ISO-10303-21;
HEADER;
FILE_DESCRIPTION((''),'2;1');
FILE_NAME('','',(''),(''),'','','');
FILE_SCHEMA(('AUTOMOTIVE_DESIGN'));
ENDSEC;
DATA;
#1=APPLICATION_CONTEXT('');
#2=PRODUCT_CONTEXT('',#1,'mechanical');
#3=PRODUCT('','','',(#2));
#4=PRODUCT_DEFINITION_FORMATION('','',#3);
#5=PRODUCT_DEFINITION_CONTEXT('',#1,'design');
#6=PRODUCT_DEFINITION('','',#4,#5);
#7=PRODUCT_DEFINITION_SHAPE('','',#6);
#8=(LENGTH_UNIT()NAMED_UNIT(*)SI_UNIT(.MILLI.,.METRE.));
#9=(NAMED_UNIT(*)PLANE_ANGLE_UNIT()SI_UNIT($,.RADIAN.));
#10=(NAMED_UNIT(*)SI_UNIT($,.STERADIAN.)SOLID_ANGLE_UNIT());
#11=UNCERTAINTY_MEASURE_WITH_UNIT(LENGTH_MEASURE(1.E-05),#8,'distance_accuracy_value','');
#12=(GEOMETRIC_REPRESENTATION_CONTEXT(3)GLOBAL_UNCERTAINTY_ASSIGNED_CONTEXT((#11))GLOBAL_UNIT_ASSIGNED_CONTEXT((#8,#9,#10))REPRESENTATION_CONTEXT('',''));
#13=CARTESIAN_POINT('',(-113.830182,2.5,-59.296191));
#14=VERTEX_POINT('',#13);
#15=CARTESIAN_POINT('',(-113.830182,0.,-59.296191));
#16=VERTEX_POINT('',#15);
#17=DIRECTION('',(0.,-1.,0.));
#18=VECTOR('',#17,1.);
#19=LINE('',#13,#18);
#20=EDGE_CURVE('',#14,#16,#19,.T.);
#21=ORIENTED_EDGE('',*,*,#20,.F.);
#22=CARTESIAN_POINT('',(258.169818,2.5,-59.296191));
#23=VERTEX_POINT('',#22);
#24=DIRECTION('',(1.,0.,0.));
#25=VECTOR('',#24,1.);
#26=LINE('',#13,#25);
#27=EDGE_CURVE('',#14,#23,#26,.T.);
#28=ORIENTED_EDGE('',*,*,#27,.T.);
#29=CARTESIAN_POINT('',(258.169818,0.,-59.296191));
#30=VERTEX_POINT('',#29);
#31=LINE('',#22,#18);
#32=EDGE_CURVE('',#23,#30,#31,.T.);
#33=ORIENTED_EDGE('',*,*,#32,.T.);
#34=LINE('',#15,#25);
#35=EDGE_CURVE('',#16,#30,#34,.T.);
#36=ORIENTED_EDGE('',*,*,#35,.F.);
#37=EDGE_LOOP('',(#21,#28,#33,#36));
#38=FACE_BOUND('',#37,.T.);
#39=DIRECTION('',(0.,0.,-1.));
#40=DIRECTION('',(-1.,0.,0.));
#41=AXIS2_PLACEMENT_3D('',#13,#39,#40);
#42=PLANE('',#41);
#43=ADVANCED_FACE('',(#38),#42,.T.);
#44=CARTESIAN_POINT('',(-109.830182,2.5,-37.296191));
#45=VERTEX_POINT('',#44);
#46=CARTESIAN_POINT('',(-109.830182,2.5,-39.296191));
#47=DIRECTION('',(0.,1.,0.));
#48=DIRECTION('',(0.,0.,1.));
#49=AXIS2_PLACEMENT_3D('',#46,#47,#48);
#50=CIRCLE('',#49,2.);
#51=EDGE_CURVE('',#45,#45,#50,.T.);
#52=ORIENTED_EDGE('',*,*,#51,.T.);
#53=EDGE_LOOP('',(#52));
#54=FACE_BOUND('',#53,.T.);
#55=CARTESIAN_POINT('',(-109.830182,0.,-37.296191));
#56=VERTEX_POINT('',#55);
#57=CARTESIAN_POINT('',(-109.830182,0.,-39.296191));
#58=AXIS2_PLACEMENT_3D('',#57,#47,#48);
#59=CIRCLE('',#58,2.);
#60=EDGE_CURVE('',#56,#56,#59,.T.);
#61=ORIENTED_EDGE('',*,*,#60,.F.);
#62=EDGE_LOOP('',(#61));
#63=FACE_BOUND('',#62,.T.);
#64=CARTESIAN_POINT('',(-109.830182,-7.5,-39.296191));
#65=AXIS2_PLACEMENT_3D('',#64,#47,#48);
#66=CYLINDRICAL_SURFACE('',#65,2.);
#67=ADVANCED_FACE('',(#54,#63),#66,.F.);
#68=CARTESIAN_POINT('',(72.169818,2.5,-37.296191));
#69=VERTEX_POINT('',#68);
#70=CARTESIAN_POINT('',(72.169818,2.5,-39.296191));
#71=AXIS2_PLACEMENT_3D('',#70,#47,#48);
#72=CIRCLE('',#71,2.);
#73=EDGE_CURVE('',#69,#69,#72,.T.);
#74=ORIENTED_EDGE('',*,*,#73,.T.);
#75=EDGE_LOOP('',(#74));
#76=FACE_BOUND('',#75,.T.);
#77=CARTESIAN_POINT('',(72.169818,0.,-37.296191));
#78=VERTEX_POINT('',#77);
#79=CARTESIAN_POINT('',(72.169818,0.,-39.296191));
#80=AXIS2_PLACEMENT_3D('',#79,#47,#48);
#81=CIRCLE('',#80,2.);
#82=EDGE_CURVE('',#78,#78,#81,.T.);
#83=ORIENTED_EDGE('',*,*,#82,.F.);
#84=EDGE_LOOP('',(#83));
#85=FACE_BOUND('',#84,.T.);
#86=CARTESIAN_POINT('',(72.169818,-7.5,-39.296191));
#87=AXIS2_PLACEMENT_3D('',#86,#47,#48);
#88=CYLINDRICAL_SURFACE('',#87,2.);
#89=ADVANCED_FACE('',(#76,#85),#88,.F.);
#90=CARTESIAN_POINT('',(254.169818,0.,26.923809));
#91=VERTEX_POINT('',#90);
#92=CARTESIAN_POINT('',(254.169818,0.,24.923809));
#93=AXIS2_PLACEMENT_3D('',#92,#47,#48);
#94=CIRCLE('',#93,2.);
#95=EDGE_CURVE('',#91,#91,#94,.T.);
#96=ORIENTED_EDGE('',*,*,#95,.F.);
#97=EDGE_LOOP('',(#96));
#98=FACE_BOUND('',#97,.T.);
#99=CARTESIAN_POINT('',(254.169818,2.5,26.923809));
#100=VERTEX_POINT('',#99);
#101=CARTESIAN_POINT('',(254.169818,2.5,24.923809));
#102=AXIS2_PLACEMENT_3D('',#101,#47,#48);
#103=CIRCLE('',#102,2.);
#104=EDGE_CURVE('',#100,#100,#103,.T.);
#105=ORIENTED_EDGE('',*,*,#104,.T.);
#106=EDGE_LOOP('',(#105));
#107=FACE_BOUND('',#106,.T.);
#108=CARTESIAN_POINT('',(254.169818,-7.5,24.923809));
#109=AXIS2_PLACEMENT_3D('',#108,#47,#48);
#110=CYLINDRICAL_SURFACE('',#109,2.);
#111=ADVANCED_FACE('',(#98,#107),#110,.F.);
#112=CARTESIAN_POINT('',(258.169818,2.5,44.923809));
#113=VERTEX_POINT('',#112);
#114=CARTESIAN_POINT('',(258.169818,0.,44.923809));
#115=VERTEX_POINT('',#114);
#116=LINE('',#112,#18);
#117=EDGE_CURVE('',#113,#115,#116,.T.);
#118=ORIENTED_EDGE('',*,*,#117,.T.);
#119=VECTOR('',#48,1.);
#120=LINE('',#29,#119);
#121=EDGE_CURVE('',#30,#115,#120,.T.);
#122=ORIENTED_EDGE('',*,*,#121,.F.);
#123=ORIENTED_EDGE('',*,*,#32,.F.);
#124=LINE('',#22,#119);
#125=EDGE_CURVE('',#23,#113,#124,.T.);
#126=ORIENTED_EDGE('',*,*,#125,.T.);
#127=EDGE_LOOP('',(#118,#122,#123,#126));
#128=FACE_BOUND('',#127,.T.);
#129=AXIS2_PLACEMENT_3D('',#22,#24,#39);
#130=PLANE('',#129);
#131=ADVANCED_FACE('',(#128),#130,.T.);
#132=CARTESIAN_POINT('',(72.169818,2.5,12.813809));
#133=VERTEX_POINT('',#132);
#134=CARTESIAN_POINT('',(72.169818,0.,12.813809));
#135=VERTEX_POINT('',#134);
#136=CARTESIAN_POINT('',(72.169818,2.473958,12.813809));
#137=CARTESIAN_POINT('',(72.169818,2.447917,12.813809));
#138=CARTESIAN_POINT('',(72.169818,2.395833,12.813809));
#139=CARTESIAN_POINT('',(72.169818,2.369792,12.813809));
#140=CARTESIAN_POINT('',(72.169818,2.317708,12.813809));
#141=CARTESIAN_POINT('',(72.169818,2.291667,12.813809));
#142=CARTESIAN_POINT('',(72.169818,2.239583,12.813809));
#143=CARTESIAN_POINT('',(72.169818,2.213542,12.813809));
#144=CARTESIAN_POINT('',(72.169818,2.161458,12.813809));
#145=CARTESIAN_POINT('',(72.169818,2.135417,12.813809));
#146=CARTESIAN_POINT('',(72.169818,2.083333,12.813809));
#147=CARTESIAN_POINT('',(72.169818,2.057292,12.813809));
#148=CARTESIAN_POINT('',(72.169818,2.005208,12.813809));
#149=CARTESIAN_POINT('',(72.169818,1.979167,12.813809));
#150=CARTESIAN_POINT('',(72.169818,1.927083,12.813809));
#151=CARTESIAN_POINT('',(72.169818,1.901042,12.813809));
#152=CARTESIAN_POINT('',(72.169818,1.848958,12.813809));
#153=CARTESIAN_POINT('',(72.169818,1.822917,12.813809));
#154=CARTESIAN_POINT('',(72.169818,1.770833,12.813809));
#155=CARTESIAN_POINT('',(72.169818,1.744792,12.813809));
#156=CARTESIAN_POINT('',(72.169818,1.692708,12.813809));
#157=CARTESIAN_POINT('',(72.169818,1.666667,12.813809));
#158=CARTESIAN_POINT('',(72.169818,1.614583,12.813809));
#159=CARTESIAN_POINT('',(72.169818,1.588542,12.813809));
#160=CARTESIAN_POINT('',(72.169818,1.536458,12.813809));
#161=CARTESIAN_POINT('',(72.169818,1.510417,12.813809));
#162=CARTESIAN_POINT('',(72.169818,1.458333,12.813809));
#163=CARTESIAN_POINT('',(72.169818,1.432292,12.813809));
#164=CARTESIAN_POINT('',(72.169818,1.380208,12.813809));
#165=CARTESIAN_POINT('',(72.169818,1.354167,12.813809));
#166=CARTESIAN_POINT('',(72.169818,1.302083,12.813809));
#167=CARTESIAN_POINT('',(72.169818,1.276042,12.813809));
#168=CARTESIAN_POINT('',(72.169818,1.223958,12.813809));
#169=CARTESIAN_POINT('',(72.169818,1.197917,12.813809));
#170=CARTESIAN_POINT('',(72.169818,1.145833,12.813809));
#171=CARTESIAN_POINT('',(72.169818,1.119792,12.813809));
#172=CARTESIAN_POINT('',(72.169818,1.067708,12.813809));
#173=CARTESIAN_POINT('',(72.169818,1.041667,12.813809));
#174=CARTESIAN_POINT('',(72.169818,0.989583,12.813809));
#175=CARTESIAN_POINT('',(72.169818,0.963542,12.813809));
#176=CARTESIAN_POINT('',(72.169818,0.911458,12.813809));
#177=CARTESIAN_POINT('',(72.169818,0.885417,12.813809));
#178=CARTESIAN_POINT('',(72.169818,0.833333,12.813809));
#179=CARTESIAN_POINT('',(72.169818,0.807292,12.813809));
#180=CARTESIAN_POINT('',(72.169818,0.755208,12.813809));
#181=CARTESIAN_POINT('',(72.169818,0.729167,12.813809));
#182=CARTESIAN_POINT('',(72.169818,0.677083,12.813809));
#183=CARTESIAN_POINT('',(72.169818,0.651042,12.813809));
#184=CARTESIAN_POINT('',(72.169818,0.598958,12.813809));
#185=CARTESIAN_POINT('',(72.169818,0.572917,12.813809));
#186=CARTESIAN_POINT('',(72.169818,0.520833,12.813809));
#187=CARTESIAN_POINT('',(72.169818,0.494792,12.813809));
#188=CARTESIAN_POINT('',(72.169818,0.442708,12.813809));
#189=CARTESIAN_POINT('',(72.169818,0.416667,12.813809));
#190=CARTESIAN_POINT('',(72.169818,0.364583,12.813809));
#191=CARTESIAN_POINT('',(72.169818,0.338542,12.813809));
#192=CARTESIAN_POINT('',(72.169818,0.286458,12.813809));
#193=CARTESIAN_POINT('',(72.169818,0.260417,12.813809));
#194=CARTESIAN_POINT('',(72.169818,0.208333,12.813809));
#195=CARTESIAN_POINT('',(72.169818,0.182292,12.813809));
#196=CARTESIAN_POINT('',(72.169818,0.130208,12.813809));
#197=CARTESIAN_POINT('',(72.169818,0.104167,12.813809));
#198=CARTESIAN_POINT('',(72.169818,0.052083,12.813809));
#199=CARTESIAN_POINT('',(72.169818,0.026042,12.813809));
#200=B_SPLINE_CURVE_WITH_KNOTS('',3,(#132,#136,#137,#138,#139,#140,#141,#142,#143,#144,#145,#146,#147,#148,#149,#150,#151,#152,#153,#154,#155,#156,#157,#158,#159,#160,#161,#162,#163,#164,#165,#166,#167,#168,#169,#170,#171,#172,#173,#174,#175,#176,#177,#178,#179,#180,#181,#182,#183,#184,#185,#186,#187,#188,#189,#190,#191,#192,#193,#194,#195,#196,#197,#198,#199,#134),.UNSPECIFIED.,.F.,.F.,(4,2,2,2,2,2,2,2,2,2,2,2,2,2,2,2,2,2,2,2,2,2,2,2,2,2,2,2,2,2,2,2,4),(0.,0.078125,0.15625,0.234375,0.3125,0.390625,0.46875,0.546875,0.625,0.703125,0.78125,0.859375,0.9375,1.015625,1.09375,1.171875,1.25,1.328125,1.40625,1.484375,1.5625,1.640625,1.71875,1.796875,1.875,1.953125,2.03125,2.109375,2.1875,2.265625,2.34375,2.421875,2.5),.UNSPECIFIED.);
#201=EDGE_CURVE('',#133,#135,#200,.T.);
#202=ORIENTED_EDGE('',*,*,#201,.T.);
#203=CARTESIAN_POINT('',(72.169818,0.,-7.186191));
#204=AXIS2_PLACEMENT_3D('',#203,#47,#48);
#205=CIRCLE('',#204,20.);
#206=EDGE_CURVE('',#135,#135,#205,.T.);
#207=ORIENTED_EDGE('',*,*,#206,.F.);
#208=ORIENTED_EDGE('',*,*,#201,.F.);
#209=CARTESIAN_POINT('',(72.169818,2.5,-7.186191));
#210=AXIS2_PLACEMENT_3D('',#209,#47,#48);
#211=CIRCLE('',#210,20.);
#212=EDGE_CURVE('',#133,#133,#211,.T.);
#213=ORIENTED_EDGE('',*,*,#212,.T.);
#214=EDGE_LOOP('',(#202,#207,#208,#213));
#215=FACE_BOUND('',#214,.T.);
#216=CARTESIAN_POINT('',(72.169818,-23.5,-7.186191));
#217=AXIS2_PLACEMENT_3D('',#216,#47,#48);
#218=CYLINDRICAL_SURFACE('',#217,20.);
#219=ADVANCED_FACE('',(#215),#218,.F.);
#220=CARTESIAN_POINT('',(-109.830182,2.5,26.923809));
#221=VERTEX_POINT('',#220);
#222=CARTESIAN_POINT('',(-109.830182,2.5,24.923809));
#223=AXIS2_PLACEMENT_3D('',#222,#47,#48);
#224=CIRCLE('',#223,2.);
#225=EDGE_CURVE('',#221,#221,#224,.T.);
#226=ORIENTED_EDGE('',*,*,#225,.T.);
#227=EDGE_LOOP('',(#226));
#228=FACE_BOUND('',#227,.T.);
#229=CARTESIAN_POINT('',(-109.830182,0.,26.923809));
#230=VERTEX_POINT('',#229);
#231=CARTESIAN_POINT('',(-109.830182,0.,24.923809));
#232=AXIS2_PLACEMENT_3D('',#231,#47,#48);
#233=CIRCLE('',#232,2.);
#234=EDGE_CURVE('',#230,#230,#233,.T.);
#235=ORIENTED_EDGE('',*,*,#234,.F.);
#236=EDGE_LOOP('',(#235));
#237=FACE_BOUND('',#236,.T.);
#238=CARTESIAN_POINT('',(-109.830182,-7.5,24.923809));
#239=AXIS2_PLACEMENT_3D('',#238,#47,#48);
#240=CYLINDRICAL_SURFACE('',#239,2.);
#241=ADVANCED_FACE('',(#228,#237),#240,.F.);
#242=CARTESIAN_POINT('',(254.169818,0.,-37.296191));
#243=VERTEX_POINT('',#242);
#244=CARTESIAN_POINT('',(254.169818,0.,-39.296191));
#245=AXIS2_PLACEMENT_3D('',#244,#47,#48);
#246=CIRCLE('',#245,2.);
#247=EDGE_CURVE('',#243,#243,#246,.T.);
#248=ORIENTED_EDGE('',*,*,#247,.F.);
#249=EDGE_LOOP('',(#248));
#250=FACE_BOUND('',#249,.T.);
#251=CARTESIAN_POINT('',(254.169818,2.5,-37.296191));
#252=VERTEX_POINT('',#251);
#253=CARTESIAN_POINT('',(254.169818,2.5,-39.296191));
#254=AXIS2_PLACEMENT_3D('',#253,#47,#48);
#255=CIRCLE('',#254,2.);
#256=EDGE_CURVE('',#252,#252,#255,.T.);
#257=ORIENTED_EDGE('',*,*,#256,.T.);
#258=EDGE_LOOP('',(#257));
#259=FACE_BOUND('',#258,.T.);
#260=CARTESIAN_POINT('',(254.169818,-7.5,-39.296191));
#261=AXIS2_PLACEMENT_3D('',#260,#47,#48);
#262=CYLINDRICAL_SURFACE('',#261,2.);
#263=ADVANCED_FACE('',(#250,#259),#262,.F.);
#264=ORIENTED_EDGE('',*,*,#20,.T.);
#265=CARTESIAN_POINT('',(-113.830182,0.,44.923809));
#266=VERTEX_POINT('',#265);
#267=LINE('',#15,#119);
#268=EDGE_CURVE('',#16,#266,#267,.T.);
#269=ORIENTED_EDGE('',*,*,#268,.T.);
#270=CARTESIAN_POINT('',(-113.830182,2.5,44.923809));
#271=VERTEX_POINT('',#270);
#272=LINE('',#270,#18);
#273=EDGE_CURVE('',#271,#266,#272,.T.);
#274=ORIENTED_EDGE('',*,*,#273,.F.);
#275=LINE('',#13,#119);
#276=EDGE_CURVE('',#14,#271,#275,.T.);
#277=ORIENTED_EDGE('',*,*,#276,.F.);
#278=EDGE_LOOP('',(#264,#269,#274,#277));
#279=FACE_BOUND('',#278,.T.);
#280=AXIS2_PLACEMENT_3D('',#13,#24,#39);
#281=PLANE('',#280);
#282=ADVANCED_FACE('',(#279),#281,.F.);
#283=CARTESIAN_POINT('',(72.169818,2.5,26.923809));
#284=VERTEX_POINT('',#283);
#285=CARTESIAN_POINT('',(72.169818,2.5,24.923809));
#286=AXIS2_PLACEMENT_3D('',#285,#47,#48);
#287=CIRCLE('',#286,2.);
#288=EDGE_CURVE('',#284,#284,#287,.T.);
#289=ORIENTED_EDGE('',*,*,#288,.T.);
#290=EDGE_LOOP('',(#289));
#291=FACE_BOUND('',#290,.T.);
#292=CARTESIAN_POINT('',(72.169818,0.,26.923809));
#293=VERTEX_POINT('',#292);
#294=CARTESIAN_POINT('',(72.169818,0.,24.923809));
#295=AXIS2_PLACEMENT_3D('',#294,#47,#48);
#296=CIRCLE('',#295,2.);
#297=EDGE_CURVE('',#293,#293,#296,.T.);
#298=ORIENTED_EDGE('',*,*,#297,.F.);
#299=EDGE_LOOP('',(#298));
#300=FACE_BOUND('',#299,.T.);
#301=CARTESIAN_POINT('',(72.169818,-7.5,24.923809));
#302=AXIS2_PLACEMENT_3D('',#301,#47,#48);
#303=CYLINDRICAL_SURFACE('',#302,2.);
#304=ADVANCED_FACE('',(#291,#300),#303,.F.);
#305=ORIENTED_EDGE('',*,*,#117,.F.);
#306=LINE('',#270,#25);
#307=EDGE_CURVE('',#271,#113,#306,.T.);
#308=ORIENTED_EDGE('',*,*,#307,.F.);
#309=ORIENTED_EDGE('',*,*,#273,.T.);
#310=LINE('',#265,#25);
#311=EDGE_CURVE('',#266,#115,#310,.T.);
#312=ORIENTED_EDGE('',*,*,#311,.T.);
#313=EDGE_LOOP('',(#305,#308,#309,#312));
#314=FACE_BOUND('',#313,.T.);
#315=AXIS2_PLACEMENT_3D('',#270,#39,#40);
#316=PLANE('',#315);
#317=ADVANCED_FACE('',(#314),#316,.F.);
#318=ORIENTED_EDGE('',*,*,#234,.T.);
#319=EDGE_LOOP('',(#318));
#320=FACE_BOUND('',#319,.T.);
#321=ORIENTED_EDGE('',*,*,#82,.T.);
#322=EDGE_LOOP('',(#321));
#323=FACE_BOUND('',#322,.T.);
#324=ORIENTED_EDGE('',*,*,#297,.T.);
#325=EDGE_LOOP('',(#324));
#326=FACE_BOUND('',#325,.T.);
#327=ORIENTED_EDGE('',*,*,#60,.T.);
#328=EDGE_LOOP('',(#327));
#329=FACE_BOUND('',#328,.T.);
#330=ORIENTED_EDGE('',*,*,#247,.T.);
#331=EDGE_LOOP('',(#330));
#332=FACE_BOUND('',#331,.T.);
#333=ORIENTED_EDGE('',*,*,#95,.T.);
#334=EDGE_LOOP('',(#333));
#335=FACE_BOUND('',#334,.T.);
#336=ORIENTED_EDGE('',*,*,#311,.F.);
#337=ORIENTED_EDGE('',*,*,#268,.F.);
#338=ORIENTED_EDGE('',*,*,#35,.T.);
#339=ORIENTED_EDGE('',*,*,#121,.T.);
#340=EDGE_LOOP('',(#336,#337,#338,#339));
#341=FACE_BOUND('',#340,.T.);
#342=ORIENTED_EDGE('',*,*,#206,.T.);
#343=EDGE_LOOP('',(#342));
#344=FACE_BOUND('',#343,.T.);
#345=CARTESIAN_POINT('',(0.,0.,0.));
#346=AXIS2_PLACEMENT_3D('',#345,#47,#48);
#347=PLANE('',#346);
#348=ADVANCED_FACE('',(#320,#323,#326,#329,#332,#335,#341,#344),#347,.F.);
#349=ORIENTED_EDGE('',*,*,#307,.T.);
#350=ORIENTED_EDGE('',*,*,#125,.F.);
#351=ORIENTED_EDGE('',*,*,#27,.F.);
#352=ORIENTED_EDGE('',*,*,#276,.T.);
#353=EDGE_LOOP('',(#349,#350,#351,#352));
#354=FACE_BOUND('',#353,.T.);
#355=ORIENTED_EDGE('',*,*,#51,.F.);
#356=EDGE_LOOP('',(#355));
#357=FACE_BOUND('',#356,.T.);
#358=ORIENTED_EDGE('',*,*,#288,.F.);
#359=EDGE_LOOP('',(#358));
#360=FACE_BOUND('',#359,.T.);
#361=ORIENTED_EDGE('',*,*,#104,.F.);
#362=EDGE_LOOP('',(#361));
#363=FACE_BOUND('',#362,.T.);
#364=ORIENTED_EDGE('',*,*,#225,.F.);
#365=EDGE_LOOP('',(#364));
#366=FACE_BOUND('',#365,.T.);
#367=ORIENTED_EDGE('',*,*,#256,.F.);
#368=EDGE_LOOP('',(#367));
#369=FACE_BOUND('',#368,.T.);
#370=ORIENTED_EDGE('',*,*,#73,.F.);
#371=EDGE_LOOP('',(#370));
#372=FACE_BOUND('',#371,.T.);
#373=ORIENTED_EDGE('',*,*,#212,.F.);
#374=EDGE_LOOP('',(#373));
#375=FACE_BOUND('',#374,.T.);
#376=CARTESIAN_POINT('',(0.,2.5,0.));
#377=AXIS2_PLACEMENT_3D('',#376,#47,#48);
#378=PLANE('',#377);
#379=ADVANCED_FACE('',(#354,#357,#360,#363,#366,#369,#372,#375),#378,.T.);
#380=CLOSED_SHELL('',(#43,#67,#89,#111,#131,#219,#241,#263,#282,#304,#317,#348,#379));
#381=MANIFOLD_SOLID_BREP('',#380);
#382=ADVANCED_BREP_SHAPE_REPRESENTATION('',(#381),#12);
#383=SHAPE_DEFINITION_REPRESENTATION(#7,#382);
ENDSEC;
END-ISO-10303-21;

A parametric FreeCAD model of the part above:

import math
import FreeCAD as App
import Part
import Sketcher

V = App.Vector
Q = App.Units.Quantity

doc = App.newDocument("Part")
body = doc.addObject("PartDesign::Body", "Body")

# Sketch on XZ plane
sketch1 = doc.addObject("Sketcher::SketchObject", "Sketch")
body.addObject(sketch1)
sketch1.AttachmentSupport = (doc.XZ_Plane, [""])
sketch1.MapMode = "FlatFace"
sketch1.addGeometry([
    Part.LineSegment(V(-114, -59, 0), V(-114, 45, 0)),
    Part.LineSegment(V(-114, 45, 0), V(258, 45, 0)),
    Part.LineSegment(V(258, 45, 0), V(258, -59, 0)),
    Part.LineSegment(V(258, -59, 0), V(-114, -59, 0)),
], False)
sketch1.addConstraint([
    Sketcher.Constraint("Coincident", 0, 2, 1, 1),
    Sketcher.Constraint("Coincident", 1, 2, 2, 1),
    Sketcher.Constraint("Coincident", 2, 2, 3, 1),
    Sketcher.Constraint("Coincident", 3, 2, 0, 1),
    Sketcher.Constraint("Vertical", 0),
    Sketcher.Constraint("Horizontal", 1),
    Sketcher.Constraint("Vertical", 2),
    Sketcher.Constraint("Horizontal", 3),
    Sketcher.Constraint("DistanceX", 1, 1, 1, 2, Q("372 mm")),
    Sketcher.Constraint("DistanceY", 0, 1, 0, 2, Q("104.22 mm")),
    Sketcher.Constraint("DistanceX", 0, 2, -1, 1, Q("113.830182 mm")),
    Sketcher.Constraint("DistanceY", -1, 1, 0, 2, Q("44.923809 mm")),
])
pad1 = doc.addObject("PartDesign::Pad", "Pad")
body.addObject(pad1)
pad1.Profile = sketch1
pad1.Length = 2.5
pad1.Reversed = True

# Sketch on XZ plane
sketch2 = doc.addObject("Sketcher::SketchObject", "Sketch001")
body.addObject(sketch2)
sketch2.AttachmentSupport = (doc.XZ_Plane, [""])
sketch2.MapMode = "FlatFace"
sketch2.AttachmentOffset = App.Placement(V(0, 0, -2.5), App.Rotation())
sketch2.addGeometry([
    Part.ArcOfCircle(Part.Circle(V(-109.8, -39.3, 0), V(0, 0, 1), 2), math.radians(-90), math.radians(0)),  # 0
    Part.ArcOfCircle(Part.Circle(V(-109.8, -39.3, 0), V(0, 0, 1), 2), math.radians(-180), math.radians(-90)),  # 1
    Part.ArcOfCircle(Part.Circle(V(-109.8, -39.3, 0), V(0, 0, 1), 2), math.radians(0), math.radians(180)),  # 2
    Part.ArcOfCircle(Part.Circle(V(254.2, -39.3, 0), V(0, 0, 1), 2), math.radians(-90), math.radians(0)),  # 3
    Part.ArcOfCircle(Part.Circle(V(254.2, -39.3, 0), V(0, 0, 1), 2), math.radians(0), math.radians(270)),  # 4
    Part.Circle(V(-109.8, 24.9, 0), V(0, 0, 1), 2),  # 5
    Part.Circle(V(254.2, 24.9, 0), V(0, 0, 1), 2),  # 6
], False)
sketch2.addConstraint([
    Sketcher.Constraint("Tangent", 0, 1, 1, 2),
    Sketcher.Constraint("Tangent", 1, 1, 2, 2),
    Sketcher.Constraint("Tangent", 2, 1, 0, 2),
    Sketcher.Constraint("Tangent", 3, 1, 4, 2),
    Sketcher.Constraint("Coincident", 4, 1, 3, 2),
    Sketcher.Constraint("Equal", 2, 3),
    Sketcher.Constraint("Equal", 4, 5),
    Sketcher.Constraint("Equal", 5, 6),
    Sketcher.Constraint("Horizontal", 2, 3, 3, 3),
    Sketcher.Constraint("Horizontal", 5, 3, 6, 3),
    Sketcher.Constraint("Horizontal", 4, 3, 1, 1),
    Sketcher.Constraint("Horizontal", 1, 1, 2, 1),
    Sketcher.Constraint("Horizontal", 2, 1, 4, 1),
    Sketcher.Constraint("Vertical", 2, 3, 5, 3),
    Sketcher.Constraint("Vertical", 4, 3, 6, 3),
    Sketcher.Constraint("Vertical", 5, 3, 0, 1),
    Sketcher.Constraint("Vertical", 6, 3, 3, 1),
    Sketcher.Constraint("Diameter", 5, Q("4 mm")),
    Sketcher.Constraint("DistanceX", 1, 3, 3, 3, Q("364 mm")),
    Sketcher.Constraint("DistanceY", 0, 3, 5, 3, Q("64.22 mm")),
    Sketcher.Constraint("DistanceX", 0, 3, -1, 1, Q("109.830182 mm")),
    Sketcher.Constraint("DistanceY", 0, 3, -1, 1, Q("39.296191 mm")),
])
pocket1 = doc.addObject("PartDesign::Pocket", "Pocket")
body.addObject(pocket1)
pocket1.Profile = sketch2
pocket1.Length = 10
pocket1.Reversed = True

# Sketch on XZ plane
sketch3 = doc.addObject("Sketcher::SketchObject", "Sketch002")
body.addObject(sketch3)
sketch3.AttachmentSupport = (doc.XZ_Plane, [""])
sketch3.MapMode = "FlatFace"
sketch3.AttachmentOffset = App.Placement(V(0, 0, -2.5), App.Rotation())
sketch3.addGeometry([
    Part.Circle(V(72.2, -39.3, 0), V(0, 0, 1), 2),
    Part.Circle(V(72.2, 24.9, 0), V(0, 0, 1), 2),
], False)
sketch3.addConstraint([
    Sketcher.Constraint("Equal", 0, 1),
    Sketcher.Constraint("Vertical", 0, 3, 1, 3),
    Sketcher.Constraint("Diameter", 0, Q("4 mm")),
    Sketcher.Constraint("DistanceY", 0, 3, 1, 3, Q("64.22 mm")),
    Sketcher.Constraint("DistanceX", -1, 1, 0, 3, Q("72.169818 mm")),
    Sketcher.Constraint("DistanceY", 0, 3, -1, 1, Q("39.296191 mm")),
])
pocket2 = doc.addObject("PartDesign::Pocket", "Pocket001")
body.addObject(pocket2)
pocket2.Profile = sketch3
pocket2.Length = 10
pocket2.Reversed = True

# Sketch on XZ plane
sketch4 = doc.addObject("Sketcher::SketchObject", "Sketch003")
body.addObject(sketch4)
sketch4.AttachmentSupport = (doc.XZ_Plane, [""])
sketch4.MapMode = "FlatFace"
sketch4.AttachmentOffset = App.Placement(V(0, 0, -2.5), App.Rotation())
sketch4.addGeometry([
    Part.ArcOfCircle(Part.Circle(V(72, -7, 0), V(0, 0, 1), 20), math.radians(-90), math.radians(0)),
    Part.ArcOfCircle(Part.Circle(V(72, -7, 0), V(0, 0, 1), 20), math.radians(90), math.radians(270)),
    Part.ArcOfCircle(Part.Circle(V(72, -7, 0), V(0, 0, 1), 20), math.radians(0), math.radians(90)),
], False)
sketch4.addConstraint([
    Sketcher.Constraint("Tangent", 0, 1, 1, 2),
    Sketcher.Constraint("Tangent", 1, 1, 2, 2),
    Sketcher.Constraint("Tangent", 2, 1, 0, 2),
    Sketcher.Constraint("Horizontal", 1, 3, 2, 1),
    Sketcher.Constraint("Vertical", 2, 3, 0, 1),
    Sketcher.Constraint("Vertical", 0, 1, 1, 1),
    Sketcher.Constraint("Radius", 0, Q("20 mm")),
    Sketcher.Constraint("DistanceX", -1, 1, 0, 3, Q("72.169818 mm")),
    Sketcher.Constraint("DistanceY", 0, 3, -1, 1, Q("7.186191 mm")),
])
pocket3 = doc.addObject("PartDesign::Pocket", "Pocket002")
body.addObject(pocket3)
pocket3.Profile = sketch4
pocket3.Length = 26
pocket3.Reversed = True

doc.recompute()
